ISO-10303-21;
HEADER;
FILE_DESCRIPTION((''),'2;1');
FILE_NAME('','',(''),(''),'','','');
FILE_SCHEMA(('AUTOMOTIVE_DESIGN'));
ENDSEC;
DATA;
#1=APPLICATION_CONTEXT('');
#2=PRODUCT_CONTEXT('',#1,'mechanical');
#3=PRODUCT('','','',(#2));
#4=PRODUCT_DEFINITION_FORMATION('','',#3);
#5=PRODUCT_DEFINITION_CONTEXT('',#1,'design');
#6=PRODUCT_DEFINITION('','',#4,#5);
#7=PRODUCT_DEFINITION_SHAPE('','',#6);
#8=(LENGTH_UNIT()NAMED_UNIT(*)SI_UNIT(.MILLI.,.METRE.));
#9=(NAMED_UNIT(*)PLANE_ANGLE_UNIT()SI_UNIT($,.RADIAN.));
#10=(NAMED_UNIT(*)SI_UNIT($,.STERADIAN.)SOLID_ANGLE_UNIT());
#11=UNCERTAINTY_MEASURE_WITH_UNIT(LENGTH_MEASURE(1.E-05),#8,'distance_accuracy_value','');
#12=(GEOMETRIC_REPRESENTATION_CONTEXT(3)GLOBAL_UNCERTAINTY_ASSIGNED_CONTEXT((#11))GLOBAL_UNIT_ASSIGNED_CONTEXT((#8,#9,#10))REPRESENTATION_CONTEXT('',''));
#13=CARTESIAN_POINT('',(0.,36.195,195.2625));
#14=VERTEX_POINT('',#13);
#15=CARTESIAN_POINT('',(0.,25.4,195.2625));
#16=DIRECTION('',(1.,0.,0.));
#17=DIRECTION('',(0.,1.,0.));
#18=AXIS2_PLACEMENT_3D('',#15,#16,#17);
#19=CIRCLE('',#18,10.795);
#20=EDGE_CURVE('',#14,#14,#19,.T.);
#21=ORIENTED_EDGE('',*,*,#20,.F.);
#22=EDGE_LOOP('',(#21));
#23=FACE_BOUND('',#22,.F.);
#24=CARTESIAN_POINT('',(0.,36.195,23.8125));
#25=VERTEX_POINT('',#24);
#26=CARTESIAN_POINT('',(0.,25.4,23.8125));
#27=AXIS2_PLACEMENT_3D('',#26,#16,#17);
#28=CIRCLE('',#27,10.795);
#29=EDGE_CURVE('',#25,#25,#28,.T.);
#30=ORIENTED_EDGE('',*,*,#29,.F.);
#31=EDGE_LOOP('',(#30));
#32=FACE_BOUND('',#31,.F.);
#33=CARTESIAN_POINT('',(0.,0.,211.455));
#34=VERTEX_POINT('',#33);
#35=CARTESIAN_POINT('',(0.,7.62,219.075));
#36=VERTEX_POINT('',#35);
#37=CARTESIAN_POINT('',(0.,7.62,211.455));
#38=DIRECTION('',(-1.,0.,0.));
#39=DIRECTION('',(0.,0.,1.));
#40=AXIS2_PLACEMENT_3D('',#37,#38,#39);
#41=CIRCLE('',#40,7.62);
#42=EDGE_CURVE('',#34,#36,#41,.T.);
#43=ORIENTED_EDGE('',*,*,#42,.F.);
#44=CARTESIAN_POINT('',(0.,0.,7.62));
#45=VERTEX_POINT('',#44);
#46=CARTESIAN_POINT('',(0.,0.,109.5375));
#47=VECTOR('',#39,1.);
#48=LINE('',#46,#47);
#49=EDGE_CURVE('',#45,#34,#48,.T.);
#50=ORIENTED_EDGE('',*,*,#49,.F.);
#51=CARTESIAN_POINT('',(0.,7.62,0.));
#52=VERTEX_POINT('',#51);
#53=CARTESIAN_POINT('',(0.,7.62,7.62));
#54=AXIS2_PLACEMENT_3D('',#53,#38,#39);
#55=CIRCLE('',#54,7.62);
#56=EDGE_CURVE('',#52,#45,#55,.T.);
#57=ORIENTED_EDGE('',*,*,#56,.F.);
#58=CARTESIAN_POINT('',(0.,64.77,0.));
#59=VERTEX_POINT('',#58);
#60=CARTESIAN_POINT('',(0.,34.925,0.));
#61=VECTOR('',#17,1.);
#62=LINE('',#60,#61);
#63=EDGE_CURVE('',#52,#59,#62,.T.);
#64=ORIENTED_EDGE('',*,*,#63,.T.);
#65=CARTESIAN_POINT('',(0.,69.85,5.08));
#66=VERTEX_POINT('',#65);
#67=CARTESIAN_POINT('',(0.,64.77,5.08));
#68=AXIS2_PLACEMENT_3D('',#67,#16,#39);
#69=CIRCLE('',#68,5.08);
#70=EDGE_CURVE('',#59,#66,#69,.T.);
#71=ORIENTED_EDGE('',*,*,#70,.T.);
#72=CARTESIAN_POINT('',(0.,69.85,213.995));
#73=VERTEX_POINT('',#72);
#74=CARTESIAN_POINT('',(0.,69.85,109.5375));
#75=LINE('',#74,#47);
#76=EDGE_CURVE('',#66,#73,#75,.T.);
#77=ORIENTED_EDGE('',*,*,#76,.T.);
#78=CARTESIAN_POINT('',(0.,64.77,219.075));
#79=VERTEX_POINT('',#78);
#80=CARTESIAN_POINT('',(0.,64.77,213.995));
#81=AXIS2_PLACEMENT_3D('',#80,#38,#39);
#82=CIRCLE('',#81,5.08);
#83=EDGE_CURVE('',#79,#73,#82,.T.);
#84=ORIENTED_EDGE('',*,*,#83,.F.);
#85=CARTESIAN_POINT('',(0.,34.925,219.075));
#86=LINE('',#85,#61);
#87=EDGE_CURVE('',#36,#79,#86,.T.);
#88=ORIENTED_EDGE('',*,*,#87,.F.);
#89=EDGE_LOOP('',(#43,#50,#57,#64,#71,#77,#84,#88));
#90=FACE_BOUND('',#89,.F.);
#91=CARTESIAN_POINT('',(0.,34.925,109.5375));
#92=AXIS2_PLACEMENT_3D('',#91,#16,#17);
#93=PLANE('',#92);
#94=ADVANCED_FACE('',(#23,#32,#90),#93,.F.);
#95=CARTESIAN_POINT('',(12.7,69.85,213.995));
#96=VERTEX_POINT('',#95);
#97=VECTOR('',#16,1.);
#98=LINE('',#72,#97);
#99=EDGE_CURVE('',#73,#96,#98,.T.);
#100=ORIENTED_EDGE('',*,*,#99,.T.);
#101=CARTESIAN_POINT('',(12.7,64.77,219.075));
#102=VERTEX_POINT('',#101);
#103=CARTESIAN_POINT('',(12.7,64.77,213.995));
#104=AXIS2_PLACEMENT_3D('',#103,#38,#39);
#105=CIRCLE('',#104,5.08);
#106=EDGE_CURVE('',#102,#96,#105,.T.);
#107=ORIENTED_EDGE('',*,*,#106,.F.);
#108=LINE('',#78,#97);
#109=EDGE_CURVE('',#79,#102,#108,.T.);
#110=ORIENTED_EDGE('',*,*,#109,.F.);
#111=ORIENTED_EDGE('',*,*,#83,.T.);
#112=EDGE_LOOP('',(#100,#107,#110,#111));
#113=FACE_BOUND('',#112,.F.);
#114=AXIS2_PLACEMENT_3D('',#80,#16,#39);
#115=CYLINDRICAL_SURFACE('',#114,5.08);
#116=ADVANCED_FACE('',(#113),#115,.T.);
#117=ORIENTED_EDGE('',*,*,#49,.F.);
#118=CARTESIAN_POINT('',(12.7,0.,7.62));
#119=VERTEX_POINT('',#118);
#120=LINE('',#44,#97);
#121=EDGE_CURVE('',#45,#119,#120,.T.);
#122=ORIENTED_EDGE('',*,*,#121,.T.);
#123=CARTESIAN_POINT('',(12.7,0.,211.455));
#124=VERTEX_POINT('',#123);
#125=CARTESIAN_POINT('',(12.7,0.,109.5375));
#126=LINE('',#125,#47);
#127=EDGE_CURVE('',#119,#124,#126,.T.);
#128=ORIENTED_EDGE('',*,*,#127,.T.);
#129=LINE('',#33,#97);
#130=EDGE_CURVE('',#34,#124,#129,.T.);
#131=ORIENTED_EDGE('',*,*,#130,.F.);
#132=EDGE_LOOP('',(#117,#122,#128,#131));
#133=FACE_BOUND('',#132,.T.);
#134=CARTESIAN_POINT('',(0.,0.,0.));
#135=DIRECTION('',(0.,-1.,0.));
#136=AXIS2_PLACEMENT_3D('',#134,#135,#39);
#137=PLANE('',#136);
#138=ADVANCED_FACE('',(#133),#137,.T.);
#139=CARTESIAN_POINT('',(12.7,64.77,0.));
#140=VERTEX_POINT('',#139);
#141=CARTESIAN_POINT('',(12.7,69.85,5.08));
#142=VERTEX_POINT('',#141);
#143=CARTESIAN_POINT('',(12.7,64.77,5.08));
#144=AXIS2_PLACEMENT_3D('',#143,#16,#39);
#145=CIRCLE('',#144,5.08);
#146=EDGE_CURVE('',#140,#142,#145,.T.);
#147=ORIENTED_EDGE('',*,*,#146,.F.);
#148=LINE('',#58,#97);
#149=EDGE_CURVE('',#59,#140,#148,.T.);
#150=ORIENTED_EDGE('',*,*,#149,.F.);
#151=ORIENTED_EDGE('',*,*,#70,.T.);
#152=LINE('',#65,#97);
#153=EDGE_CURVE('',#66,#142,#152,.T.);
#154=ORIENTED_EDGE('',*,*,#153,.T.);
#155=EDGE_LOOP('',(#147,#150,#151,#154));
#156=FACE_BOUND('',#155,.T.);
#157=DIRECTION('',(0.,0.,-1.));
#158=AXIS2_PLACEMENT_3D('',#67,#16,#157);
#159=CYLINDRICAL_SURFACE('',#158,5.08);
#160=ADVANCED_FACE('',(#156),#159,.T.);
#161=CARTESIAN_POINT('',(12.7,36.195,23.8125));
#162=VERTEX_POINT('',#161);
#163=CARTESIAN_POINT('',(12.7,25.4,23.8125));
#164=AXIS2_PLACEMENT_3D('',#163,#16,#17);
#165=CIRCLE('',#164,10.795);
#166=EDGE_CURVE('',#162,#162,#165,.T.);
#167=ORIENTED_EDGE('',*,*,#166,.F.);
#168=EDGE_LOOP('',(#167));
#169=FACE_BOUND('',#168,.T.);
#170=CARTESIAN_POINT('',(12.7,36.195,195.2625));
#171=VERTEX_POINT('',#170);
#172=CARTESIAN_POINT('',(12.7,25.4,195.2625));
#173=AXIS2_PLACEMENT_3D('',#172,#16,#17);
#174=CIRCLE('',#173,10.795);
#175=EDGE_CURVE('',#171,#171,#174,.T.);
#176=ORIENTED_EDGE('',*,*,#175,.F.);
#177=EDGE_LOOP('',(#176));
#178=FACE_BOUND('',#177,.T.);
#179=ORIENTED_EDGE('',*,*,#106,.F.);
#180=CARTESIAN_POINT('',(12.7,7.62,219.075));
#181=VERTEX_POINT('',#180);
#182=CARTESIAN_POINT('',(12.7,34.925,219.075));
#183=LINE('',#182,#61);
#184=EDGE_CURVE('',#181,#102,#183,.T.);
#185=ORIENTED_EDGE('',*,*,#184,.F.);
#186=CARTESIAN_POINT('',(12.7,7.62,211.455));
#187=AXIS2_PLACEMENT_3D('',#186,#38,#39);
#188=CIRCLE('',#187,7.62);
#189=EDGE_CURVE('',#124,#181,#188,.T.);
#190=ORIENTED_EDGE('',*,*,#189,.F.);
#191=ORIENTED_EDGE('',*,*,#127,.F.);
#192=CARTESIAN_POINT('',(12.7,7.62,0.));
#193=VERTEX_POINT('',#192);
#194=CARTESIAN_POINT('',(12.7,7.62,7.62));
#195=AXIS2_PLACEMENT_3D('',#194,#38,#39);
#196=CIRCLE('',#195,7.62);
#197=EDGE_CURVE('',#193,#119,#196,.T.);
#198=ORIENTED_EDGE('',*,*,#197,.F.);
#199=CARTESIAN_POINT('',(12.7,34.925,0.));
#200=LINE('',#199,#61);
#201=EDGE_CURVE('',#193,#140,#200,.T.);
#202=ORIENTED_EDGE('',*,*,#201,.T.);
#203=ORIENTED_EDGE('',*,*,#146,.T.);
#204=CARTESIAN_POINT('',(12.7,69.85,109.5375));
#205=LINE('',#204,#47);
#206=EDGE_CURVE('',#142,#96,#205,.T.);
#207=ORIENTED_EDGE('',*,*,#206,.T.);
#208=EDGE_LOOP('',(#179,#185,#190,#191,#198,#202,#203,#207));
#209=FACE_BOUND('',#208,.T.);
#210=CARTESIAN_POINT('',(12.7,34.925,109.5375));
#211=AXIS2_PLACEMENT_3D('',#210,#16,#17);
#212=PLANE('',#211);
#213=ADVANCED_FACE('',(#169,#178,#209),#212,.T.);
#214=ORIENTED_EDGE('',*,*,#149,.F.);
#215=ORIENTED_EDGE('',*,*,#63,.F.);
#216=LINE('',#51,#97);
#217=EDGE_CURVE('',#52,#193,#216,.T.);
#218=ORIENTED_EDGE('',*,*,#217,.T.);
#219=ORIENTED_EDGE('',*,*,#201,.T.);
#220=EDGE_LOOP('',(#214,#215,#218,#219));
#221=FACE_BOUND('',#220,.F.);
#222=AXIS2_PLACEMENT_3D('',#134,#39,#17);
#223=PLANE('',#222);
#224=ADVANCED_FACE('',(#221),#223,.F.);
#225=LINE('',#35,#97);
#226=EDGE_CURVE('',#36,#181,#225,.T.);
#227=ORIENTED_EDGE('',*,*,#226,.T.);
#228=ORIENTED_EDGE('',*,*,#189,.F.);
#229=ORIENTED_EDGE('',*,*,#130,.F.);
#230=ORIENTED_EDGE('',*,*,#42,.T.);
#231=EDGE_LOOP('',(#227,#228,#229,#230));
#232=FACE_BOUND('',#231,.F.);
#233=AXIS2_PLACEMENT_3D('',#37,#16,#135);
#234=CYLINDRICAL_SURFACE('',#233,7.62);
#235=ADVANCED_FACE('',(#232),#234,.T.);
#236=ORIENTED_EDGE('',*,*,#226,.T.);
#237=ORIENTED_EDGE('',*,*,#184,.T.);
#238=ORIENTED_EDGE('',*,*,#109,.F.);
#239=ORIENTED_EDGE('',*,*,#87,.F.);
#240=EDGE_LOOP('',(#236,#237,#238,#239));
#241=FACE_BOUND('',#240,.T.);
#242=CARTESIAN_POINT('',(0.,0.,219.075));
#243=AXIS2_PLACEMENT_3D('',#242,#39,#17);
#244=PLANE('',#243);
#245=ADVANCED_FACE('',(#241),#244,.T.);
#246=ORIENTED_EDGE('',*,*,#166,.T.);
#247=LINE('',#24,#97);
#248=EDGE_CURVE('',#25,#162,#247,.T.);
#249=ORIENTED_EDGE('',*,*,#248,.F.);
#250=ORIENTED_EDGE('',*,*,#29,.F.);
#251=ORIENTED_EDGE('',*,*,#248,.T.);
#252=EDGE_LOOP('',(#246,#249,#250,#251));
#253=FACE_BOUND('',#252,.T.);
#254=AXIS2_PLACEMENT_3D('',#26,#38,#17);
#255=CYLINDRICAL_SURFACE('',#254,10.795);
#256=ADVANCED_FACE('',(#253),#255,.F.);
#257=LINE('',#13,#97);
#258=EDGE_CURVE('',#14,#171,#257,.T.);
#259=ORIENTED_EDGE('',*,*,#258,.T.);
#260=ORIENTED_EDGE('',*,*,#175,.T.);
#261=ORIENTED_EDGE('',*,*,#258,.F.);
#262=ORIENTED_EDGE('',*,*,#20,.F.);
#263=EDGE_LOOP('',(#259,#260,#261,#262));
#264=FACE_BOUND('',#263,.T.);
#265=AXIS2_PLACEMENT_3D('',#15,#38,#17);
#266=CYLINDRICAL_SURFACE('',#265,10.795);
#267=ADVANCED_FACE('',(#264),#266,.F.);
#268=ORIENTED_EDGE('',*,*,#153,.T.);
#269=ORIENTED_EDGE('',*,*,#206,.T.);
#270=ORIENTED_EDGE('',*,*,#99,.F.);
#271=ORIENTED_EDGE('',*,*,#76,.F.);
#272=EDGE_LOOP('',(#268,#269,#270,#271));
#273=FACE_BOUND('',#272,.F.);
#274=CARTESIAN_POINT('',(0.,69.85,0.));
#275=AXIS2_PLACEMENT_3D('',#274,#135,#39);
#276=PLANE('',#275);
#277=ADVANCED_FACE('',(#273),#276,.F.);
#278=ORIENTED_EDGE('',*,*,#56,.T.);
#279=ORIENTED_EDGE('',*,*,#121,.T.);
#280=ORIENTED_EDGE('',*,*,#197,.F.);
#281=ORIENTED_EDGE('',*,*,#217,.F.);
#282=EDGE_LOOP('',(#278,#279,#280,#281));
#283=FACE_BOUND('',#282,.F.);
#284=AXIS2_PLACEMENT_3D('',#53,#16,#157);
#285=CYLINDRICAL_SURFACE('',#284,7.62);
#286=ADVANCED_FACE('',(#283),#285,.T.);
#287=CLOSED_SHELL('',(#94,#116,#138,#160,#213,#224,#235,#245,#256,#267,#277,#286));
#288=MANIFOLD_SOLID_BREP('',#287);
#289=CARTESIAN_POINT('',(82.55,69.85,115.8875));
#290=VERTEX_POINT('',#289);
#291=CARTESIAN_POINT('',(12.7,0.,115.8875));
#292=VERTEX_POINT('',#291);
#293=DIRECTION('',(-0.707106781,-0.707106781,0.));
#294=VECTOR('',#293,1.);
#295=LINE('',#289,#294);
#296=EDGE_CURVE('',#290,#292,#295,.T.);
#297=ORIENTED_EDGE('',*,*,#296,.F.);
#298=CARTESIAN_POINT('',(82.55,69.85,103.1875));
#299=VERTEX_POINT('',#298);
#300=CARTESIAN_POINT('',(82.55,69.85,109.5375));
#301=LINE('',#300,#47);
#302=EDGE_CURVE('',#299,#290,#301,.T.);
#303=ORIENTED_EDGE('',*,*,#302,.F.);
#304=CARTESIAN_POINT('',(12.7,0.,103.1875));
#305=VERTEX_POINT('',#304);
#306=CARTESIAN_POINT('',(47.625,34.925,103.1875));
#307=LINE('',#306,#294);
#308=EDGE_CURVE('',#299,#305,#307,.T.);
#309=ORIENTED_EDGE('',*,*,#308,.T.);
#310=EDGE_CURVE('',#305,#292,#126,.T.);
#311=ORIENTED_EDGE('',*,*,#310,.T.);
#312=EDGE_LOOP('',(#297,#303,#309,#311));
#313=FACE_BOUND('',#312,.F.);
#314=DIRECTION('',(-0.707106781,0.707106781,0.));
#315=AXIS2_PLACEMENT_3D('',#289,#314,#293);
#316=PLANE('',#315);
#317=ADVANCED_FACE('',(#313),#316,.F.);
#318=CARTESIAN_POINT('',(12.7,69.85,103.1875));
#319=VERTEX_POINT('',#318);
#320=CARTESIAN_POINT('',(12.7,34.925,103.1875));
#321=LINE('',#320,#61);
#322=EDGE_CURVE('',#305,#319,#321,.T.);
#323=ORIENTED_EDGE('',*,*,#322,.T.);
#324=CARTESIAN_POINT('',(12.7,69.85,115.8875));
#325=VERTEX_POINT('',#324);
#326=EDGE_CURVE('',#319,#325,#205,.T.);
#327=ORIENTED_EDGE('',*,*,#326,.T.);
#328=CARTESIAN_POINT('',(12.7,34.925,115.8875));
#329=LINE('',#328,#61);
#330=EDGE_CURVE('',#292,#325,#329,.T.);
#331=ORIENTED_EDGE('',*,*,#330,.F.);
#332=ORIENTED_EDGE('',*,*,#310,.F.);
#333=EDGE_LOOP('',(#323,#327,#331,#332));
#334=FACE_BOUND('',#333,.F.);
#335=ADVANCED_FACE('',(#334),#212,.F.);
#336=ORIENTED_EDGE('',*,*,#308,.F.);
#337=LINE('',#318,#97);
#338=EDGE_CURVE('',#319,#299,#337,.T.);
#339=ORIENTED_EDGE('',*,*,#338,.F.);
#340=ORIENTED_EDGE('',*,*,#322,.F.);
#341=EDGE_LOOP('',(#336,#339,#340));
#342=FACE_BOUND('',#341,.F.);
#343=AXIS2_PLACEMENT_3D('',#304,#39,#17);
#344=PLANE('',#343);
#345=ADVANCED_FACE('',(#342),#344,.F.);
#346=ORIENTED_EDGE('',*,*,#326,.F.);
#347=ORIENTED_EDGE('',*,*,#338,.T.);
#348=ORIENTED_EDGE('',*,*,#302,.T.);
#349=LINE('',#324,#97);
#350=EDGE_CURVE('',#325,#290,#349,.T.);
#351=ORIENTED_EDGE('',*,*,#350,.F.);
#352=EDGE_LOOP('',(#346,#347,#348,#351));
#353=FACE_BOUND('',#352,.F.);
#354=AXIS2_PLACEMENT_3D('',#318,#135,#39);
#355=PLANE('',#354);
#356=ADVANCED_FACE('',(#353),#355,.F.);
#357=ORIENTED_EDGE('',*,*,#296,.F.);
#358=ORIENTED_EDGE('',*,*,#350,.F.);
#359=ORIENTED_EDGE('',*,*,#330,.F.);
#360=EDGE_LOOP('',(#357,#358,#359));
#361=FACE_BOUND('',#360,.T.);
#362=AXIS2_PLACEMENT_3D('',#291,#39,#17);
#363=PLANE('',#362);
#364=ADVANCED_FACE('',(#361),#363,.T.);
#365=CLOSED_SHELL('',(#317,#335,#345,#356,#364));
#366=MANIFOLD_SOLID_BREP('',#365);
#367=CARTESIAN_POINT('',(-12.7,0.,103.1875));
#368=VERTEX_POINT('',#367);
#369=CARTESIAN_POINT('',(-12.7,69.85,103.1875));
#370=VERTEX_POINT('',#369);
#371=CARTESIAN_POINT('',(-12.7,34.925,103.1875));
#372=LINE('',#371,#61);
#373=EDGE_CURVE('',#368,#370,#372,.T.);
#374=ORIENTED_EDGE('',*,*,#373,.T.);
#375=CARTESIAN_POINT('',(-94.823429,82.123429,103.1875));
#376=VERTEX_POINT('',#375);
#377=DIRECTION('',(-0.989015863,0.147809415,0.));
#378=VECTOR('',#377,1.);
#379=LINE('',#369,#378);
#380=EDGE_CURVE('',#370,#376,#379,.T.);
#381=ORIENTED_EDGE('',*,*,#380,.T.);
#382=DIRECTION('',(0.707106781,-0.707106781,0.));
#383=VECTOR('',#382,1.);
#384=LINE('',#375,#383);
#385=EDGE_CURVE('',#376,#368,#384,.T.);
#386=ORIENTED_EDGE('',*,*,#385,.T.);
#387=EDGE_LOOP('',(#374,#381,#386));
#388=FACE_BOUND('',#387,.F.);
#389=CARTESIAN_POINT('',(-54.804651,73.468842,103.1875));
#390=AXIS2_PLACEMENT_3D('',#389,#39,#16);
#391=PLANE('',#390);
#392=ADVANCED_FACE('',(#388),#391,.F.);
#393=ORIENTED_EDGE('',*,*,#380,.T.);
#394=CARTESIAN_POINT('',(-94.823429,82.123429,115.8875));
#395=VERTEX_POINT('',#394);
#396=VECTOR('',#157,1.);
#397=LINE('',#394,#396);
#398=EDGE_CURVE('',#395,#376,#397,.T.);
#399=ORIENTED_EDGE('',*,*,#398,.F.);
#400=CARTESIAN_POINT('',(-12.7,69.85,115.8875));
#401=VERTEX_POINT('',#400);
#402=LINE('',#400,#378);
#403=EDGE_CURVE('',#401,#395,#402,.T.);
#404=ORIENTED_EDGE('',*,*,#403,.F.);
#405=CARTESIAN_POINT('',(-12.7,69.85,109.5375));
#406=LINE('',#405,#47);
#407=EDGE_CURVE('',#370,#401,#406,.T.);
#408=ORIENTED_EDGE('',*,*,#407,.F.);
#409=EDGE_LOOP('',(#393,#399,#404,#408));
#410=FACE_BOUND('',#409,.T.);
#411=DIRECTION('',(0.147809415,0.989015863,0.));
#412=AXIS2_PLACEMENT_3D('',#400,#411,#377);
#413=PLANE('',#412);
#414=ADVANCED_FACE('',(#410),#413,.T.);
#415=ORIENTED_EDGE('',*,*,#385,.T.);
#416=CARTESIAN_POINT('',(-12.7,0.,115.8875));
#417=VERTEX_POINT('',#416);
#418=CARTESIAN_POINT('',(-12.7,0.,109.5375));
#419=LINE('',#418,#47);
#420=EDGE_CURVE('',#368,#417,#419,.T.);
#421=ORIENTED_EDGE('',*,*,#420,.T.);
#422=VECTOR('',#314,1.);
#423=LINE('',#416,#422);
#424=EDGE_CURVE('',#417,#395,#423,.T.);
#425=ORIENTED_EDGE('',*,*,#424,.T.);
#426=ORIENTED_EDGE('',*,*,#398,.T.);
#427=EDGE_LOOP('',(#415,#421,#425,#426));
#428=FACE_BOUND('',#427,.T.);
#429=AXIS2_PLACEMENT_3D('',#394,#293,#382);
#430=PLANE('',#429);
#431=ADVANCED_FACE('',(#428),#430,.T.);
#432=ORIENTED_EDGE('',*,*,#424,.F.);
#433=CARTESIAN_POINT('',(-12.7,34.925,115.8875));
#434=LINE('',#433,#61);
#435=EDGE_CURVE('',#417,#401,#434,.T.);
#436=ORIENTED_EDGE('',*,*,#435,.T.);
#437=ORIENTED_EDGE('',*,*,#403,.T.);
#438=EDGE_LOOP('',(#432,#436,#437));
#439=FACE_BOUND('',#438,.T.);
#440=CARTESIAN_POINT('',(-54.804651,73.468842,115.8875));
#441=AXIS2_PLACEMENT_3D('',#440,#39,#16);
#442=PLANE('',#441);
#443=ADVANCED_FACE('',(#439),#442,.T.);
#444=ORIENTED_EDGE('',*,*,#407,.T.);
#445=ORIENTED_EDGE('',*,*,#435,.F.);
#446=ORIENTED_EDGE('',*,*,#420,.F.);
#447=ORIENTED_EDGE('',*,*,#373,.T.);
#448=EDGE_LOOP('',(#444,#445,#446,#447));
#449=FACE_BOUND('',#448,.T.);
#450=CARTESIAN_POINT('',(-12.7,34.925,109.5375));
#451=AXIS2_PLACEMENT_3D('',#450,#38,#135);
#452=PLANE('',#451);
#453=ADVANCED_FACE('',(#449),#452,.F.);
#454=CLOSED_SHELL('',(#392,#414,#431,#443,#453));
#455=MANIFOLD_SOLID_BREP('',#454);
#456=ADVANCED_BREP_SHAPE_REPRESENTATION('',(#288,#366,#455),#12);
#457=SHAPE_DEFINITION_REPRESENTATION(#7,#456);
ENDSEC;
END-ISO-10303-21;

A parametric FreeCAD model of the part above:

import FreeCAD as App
import Part
import Sketcher
from FreeCAD import Vector
Q = App.Units.Quantity


def edges_at(feature, points):
    """Names of the edges that pass closest to the given points."""
    edges = feature.Shape.Edges
    near = lambda p: min(range(len(edges)), key=lambda i: edges[i].distToShape(Part.Vertex(*p))[0])
    return sorted({f"Edge{near(p) + 1}" for p in points})


def add_polygon(sketch, points):
    """Adds a closed chain of lines whose ends are joined by coincident constraints."""
    first, n = sketch.GeometryCount, len(points)
    for a, b in zip(points, points[1:] + points[:1]):
        sketch.addGeometry(Part.LineSegment(App.Vector(*a, 0), App.Vector(*b, 0)), False)
    for i in range(n):
        sketch.addConstraint(Sketcher.Constraint("Coincident", first + i, 2, first + (i + 1) % n, 1))

doc = App.newDocument("Part")
body = doc.addObject("PartDesign::Body", "Body")

sketch1 = body.newObject("Sketcher::SketchObject", "Sketch")
sketch1.AttachmentSupport = (doc.getObject("YZ_Plane"), [""])
sketch1.MapMode = "FlatFace"
add_polygon(sketch1, [(0, 219.075), (0, 0), (69.85, 0), (69.85, 219.075)])
sketch1.addGeometry(Part.Circle(Vector(25.4, 23.8125, 0), Vector(0, 0, 1), 10.795), False)
sketch1.addGeometry(Part.Circle(Vector(25.4, 195.2625, 0), Vector(0, 0, 1), 10.795), False)
sketch1.addConstraint([
    Sketcher.Constraint("Vertical", 0),
    Sketcher.Constraint("Horizontal", 1),
    Sketcher.Constraint("Vertical", 2),
    Sketcher.Constraint("Horizontal", 3),
    Sketcher.Constraint("Coincident", 0, 2, -1, 1),
    Sketcher.Constraint("Equal", 4, 5),
    Sketcher.Constraint("Vertical", 4, 3, 5, 3),
    Sketcher.Constraint("Diameter", 4, Q("0.85 in")),
    Sketcher.Constraint("DistanceX", -1, 1, 4, 3, Q("1 in")),
    Sketcher.Constraint("DistanceX", 1, 1, 1, 2, Q("2.75 in")),
    Sketcher.Constraint("DistanceY", 0, 2, 0, 1, Q("8.625 in")),
    Sketcher.Constraint("DistanceY", 4, 3, 5, 3, Q("6.75 in")),
    Sketcher.Constraint("DistanceY", -1, 1, 4, 3, Q("0.9375 in")),
])
pad1 = body.newObject("PartDesign::Pad", "Pad")
pad1.Profile = sketch1
pad1.Length = Q("0.5 in")
doc.recompute()

fillet = body.newObject("PartDesign::Fillet", "Fillet")
fillet.Base = (pad1, edges_at(pad1, [(6.35, 69.85, 219.075), (6.35, 69.85, 0)]))
fillet.Radius = Q("0.2 in")
doc.recompute()

fillet2 = body.newObject("PartDesign::Fillet", "Fillet001")
fillet2.Base = (fillet, edges_at(fillet, [(6.35, 0, 219.075), (6.35, 0, 0)]))
fillet2.Radius = Q("0.3 in")
body2 = doc.addObject("PartDesign::Body", "Body001")

sketch2 = body2.newObject("Sketcher::SketchObject", "Sketch001")
sketch2.AttachmentSupport = (doc.getObject("YZ_Plane001"), [""])
sketch2.MapMode = "FlatFace"
sketch2.AttachmentOffset = App.Placement(Vector(0, 0, 0.5 * 25.4), App.Rotation())
add_polygon(sketch2, [(0, 115.8875), (0, 103.1875), (69.85, 103.1875), (69.85, 115.8875)])
sketch2.addConstraint([
    Sketcher.Constraint("Vertical", 0),
    Sketcher.Constraint("Horizontal", 1),
    Sketcher.Constraint("Vertical", 2),
    Sketcher.Constraint("Horizontal", 3),
    Sketcher.Constraint("PointOnObject", 0, 2, -2),
    Sketcher.Constraint("DistanceY", 0, 2, 0, 1, Q("0.5 in")),
    Sketcher.Constraint("DistanceX", 1, 1, 1, 2, Q("2.75 in")),
    Sketcher.Constraint("DistanceY", -1, 1, 0, 2, Q("4.0625 in")),
])
pad2 = body2.newObject("PartDesign::Pad", "Pad001")
pad2.Profile = sketch2
pad2.Length = Q("2.75 in")

sketch3 = body2.newObject("Sketcher::SketchObject", "Sketch002")
sketch3.AttachmentSupport = (doc.getObject("XY_Plane001"), [""])
sketch3.MapMode = "FlatFace"
sketch3.AttachmentOffset = App.Placement(Vector(0, 0, 4.5625 * 25.4), App.Rotation())
add_polygon(sketch3, [(82.55, 0), (82.55, 69.85), (12.7, 0)])
sketch3.addConstraint([
    Sketcher.Constraint("Vertical", 0),
    Sketcher.Constraint("Horizontal", 2),
    Sketcher.Constraint("PointOnObject", 1, 2, -1),
    Sketcher.Constraint("Equal", 2, 0),
    Sketcher.Constraint("DistanceX", 2, 1, 2, 2, Q("2.75 in")),
    Sketcher.Constraint("DistanceX", -1, 1, 1, 2, Q("0.5 in")),
])
pocket1 = body2.newObject("PartDesign::Pocket", "Pocket")
pocket1.Profile = sketch3
pocket1.Type = "ThroughAll"
body3 = doc.addObject("PartDesign::Body", "Body002")
doc.recompute()

mirroring = doc.addObject("Part::Mirroring", "Mirroring")
mirroring.Source = body2
mirroring.Base = Vector(0, 35.436059, 109.5375)
mirroring.Normal = Vector(-1, 0, 0)
body3.BaseFeature = mirroring
doc.recompute()

sketch4 = body3.newObject("Sketcher::SketchObject", "Sketch003")
sketch4.AttachmentSupport = (doc.getObject("XY_Plane002"), [""])
sketch4.MapMode = "FlatFace"
sketch4.AttachmentOffset = App.Placement(Vector(0, 0, 4.5625 * 25.4), App.Rotation())
add_polygon(sketch4, [(-82.55, 69.85), (-12.7, 69.85), (-94.823429, 82.123429)])
sketch4.addConstraint([
    Sketcher.Constraint("Horizontal", 0),
    Sketcher.Constraint("Angle", 2, Q("-45 deg")),
    Sketcher.Constraint("DistanceX", 0, 1, 0, 2, Q("2.75 in")),
    Sketcher.Constraint("DistanceX", 0, 2, -1, 1, Q("0.5 in")),
    Sketcher.Constraint("Angle", 1, Q("171.5 deg")),
    Sketcher.Constraint("DistanceY", -1, 1, 0, 2, Q("2.75 in")),
])
pad3 = body3.newObject("PartDesign::Pad", "Pad002")
pad3.Profile = sketch4
pad3.Length = Q("0.5 in")
pad3.Reversed = True
mirroring.Visibility = False

doc.recompute()
